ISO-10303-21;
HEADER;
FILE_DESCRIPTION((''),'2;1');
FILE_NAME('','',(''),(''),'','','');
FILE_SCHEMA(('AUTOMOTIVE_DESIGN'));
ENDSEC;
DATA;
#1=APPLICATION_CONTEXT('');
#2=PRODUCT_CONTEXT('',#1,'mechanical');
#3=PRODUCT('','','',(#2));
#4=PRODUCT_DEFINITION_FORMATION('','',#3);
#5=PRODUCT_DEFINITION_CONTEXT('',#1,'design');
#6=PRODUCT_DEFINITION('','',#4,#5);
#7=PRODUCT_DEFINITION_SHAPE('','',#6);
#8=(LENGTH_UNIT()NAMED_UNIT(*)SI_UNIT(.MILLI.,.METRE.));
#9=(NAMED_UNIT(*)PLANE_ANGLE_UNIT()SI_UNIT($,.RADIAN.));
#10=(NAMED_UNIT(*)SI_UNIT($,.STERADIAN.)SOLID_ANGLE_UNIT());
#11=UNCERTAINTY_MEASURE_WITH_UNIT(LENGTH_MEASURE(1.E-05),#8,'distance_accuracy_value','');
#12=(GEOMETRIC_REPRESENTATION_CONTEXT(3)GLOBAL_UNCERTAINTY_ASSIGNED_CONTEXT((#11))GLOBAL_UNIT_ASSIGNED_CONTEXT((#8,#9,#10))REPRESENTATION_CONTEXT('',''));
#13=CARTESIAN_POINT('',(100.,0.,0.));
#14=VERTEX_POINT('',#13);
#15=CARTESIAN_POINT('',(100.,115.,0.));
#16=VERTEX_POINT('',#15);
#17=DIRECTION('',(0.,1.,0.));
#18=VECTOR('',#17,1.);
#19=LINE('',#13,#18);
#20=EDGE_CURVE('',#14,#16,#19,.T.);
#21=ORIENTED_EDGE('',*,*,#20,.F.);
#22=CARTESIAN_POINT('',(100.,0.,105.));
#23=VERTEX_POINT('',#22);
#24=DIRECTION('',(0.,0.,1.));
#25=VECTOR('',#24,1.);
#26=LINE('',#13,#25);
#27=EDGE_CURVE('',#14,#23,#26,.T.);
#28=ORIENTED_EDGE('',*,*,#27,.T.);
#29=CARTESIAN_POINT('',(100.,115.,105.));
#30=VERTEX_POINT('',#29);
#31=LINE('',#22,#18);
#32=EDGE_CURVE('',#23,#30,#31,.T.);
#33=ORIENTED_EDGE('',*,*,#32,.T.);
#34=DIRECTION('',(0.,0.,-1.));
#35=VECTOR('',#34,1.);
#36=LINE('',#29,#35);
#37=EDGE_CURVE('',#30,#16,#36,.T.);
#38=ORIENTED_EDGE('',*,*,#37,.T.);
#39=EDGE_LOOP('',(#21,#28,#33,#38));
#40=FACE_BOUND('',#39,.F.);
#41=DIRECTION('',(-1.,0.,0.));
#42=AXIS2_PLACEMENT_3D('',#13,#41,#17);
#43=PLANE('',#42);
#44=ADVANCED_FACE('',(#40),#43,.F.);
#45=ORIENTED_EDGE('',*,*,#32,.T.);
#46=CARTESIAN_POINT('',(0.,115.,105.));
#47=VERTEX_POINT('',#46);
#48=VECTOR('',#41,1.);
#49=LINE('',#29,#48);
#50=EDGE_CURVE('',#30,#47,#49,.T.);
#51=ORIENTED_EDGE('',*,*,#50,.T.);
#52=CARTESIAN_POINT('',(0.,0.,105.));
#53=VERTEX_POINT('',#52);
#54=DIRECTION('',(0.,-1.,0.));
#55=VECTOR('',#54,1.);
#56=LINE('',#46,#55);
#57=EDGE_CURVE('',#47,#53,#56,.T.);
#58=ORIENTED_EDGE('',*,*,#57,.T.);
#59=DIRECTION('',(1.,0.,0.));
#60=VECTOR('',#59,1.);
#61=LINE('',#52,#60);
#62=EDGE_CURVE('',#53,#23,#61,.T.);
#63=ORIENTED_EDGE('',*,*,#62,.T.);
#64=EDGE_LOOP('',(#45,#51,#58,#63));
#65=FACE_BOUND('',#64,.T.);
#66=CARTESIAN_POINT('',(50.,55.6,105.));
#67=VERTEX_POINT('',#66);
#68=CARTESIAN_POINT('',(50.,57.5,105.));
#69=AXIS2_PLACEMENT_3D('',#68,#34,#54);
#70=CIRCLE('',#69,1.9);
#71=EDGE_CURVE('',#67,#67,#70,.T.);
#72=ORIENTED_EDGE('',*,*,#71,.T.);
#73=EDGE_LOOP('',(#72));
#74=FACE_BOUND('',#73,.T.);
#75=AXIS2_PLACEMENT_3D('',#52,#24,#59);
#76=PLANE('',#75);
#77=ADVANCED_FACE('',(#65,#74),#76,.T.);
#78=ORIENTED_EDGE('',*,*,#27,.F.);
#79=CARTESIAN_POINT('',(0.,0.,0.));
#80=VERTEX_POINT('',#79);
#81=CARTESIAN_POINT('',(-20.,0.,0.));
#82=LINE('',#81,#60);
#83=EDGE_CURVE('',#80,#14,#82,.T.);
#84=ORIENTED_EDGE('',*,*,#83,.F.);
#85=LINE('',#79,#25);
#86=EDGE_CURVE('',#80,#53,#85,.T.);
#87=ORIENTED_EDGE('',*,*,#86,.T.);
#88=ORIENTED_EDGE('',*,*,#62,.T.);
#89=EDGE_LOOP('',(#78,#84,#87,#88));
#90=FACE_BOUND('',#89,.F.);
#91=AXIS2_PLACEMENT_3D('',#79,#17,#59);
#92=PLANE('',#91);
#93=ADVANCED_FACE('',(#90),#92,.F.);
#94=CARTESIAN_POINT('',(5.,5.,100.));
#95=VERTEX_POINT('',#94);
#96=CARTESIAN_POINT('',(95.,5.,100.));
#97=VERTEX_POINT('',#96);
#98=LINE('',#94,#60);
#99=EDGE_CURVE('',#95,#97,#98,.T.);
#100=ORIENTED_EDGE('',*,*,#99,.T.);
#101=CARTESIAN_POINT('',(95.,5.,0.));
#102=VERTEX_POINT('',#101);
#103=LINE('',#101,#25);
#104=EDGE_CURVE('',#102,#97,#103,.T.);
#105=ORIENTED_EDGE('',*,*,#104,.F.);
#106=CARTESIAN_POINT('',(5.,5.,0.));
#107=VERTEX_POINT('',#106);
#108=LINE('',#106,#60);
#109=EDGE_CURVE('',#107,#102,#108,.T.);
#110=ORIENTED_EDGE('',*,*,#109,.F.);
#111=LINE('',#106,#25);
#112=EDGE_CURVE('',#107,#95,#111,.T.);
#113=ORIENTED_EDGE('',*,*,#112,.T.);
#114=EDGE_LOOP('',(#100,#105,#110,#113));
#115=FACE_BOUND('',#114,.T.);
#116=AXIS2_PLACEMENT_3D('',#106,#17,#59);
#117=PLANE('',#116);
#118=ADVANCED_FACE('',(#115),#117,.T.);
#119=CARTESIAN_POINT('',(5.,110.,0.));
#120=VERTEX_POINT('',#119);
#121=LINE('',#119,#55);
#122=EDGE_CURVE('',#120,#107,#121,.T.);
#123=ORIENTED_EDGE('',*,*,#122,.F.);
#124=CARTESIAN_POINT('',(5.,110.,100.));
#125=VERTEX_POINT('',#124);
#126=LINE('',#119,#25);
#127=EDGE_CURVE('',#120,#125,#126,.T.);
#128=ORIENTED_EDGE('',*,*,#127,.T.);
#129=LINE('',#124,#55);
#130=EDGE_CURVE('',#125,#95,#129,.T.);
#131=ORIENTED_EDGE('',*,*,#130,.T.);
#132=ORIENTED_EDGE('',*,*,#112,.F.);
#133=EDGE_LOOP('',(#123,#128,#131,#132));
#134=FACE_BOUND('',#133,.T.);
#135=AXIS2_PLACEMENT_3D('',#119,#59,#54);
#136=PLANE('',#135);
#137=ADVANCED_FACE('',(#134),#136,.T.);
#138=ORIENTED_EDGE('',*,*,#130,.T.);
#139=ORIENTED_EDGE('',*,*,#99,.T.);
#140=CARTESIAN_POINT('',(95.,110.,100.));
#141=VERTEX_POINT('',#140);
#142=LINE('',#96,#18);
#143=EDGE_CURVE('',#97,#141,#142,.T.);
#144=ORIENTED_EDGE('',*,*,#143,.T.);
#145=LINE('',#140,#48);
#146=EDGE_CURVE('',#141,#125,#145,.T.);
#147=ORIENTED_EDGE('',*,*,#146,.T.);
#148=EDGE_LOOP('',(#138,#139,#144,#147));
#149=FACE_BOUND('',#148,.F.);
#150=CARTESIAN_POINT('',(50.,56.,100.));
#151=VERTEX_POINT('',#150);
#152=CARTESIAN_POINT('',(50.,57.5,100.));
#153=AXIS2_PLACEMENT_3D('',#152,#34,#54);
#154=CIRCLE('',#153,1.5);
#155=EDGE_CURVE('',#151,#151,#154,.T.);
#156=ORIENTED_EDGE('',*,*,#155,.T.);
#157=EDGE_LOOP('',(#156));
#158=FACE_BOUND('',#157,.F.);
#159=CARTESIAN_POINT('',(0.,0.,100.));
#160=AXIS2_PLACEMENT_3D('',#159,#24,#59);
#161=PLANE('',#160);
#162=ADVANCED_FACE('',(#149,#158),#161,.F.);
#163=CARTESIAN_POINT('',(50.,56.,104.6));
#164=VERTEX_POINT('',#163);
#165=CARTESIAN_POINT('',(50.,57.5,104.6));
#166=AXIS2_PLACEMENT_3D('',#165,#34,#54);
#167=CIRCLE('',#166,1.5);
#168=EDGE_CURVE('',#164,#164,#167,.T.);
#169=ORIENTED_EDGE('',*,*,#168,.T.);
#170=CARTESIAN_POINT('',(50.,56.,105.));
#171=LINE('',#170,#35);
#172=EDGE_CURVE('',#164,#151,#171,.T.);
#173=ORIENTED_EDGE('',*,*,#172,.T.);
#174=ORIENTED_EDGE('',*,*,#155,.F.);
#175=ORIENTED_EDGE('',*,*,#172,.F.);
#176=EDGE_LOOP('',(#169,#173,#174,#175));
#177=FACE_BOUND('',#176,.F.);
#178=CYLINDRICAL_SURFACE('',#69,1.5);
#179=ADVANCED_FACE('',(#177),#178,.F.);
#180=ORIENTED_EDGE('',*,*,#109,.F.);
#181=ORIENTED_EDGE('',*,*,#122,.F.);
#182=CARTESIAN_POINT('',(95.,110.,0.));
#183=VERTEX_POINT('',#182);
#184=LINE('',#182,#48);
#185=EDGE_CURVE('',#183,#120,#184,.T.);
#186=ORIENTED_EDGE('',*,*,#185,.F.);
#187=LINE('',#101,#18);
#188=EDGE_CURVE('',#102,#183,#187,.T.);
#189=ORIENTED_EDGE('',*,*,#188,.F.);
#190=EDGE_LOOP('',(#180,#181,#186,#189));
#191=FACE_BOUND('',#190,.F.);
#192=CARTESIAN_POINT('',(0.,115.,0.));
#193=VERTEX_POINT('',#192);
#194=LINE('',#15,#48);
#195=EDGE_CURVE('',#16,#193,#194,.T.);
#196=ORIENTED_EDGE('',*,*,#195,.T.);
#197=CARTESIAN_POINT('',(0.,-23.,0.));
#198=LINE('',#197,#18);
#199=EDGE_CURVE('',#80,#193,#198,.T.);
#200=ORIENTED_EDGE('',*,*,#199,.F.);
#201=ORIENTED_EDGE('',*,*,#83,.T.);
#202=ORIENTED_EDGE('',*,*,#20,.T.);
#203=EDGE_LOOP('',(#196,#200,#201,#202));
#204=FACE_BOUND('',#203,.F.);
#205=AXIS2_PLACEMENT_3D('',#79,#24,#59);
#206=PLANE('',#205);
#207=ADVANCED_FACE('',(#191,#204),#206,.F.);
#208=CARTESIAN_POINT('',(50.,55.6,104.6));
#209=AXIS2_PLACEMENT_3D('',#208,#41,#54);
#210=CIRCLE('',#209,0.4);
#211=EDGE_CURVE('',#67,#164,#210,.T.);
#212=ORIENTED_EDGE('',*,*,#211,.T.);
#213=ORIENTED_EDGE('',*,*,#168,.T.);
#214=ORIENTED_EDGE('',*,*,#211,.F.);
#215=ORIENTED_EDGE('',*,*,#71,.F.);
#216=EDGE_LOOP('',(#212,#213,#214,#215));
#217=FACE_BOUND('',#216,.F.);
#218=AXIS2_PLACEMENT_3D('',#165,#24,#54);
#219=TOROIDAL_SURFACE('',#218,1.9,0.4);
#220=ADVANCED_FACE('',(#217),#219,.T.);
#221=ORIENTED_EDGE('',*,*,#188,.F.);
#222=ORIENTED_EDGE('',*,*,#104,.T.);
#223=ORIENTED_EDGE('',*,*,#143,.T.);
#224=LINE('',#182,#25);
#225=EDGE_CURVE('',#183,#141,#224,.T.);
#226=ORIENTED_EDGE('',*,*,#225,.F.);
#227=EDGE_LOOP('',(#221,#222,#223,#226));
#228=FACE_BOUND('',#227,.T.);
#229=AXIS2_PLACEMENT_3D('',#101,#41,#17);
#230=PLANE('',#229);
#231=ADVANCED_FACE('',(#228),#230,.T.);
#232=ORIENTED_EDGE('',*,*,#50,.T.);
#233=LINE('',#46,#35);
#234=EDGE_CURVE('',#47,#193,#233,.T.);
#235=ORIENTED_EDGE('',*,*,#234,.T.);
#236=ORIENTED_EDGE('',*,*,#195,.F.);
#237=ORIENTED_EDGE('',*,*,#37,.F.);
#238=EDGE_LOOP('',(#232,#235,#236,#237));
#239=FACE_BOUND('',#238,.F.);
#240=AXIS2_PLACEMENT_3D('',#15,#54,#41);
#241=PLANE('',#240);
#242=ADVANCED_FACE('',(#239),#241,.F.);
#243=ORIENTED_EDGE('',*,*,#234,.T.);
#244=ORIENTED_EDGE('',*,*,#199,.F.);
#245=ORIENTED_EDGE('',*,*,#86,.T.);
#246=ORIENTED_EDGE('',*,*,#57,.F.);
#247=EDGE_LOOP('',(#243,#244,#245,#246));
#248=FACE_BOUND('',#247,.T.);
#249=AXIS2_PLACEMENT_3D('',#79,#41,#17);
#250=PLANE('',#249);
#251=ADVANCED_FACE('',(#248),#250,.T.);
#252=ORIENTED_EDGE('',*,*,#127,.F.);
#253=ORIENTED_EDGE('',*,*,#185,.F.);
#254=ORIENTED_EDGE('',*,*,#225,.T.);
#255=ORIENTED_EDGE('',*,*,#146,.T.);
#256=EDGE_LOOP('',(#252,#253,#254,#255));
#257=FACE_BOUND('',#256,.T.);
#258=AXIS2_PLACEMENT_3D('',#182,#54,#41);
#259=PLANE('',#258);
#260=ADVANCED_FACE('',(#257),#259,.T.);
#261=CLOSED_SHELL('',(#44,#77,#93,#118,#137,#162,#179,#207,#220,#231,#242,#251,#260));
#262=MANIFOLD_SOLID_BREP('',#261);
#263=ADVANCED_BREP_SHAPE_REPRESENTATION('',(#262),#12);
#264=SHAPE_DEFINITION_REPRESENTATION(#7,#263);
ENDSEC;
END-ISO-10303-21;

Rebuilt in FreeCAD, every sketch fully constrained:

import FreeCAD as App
import Part
import Sketcher


def edges_at(feature, points):
    """Names of the edges that pass closest to the given points."""
    edges = feature.Shape.Edges
    near = lambda p: min(range(len(edges)), key=lambda i: edges[i].distToShape(Part.Vertex(*p))[0])
    return sorted({f"Edge{near(p) + 1}" for p in points})


def add_polygon(sketch, points):
    """Adds a closed chain of lines whose ends are joined by coincident constraints."""
    first, n = sketch.GeometryCount, len(points)
    for a, b in zip(points, points[1:] + points[:1]):
        sketch.addGeometry(Part.LineSegment(App.Vector(*a, 0), App.Vector(*b, 0)), False)
    for i in range(n):
        sketch.addConstraint(Sketcher.Constraint("Coincident", first + i, 2, first + (i + 1) % n, 1))

doc = App.newDocument("Part")
params = doc.addObject("Spreadsheet::Sheet", "Params")
for row, (alias, value) in enumerate([
    ("sketch1_width", "90 mm"),
    ("sketch1_height", "105 mm"),
    ("pad1_length", "100 mm"),
    ("sketch2_width", "100 mm"),
    ("sketch2_height", "115 mm"),
    ("pad2_length", "5 mm"),
    ("sketch3_diameter", "3 mm"),
    ("hole_diameter", "3 mm"),
    ("fillet_radius", "0.4 mm"),
], start=1):
    params.set(f"A{row}", alias)
    params.set(f"B{row}", "=" + value)
    params.setAlias(f"B{row}", alias)

body = doc.addObject("PartDesign::Body", "Body")

sketch1 = doc.addObject("Sketcher::SketchObject", "Sketch")
body.addObject(sketch1)
sketch1.AttachmentSupport = (doc.XY_Plane, [""])
sketch1.MapMode = "FlatFace"
add_polygon(sketch1, [(0, 115), (0, 0), (100, 0), (100, 115)])
add_polygon(sketch1, [(95, 5), (5, 5), (5, 110), (95, 110)])
sketch1.addConstraint([
    Sketcher.Constraint("Vertical", 0),
    Sketcher.Constraint("Horizontal", 1),
    Sketcher.Constraint("Vertical", 2),
    Sketcher.Constraint("Horizontal", 3),
    Sketcher.Constraint("Horizontal", 4),
    Sketcher.Constraint("Vertical", 5),
    Sketcher.Constraint("Horizontal", 6),
    Sketcher.Constraint("Vertical", 7),
    Sketcher.Constraint("Coincident", 0, 2, -1, 1),
    Sketcher.Constraint("DistanceX", 4, 2, 4, 1, 90.0),
    Sketcher.Constraint("DistanceY", 5, 1, 5, 2, 105.0),
    Sketcher.Constraint("DistanceX", -1, 1, 4, 2, 5.0),
    Sketcher.Constraint("DistanceY", -1, 1, 4, 2, 5.0),
    Sketcher.Constraint("DistanceY", 5, 2, 3, 2, 5.0),
    Sketcher.Constraint("DistanceX", 6, 2, 2, 2, 5.0),
])
sketch1.setExpression("Constraints[17]", "Params.sketch1_width")
sketch1.setExpression("Constraints[18]", "Params.sketch1_height")
pad1 = doc.addObject("PartDesign::Pad", "Pad")
body.addObject(pad1)
pad1.Profile = sketch1
pad1.setExpression("Length", "Params.pad1_length")

sketch2 = doc.addObject("Sketcher::SketchObject", "Sketch001")
body.addObject(sketch2)
sketch2.AttachmentSupport = (doc.XY_Plane, [""])
sketch2.MapMode = "FlatFace"
sketch2.AttachmentOffset = App.Placement(App.Vector(0, 0, 100), App.Rotation())
add_polygon(sketch2, [(100, 115), (0, 115), (0, 0), (100, 0)])
sketch2.addConstraint([
    Sketcher.Constraint("Horizontal", 0),
    Sketcher.Constraint("Vertical", 1),
    Sketcher.Constraint("Horizontal", 2),
    Sketcher.Constraint("Vertical", 3),
    Sketcher.Constraint("Coincident", 1, 2, -1, 1),
    Sketcher.Constraint("DistanceX", 0, 2, 0, 1, 100.0),
    Sketcher.Constraint("DistanceY", 1, 2, 1, 1, 115.0),
])
sketch2.setExpression("Constraints[9]", "Params.sketch2_width")
sketch2.setExpression("Constraints[10]", "Params.sketch2_height")
pad2 = doc.addObject("PartDesign::Pad", "Pad001")
body.addObject(pad2)
pad2.Profile = sketch2
pad2.setExpression("Length", "Params.pad2_length")

sketch3 = doc.addObject("Sketcher::SketchObject", "Sketch002")
body.addObject(sketch3)
sketch3.AttachmentSupport = (doc.XY_Plane, [""])
sketch3.MapMode = "FlatFace"
sketch3.AttachmentOffset = App.Placement(App.Vector(0, 0, 105), App.Rotation())
sketch3.addGeometry(Part.Circle(App.Vector(50, 57.5, 0), App.Vector(0, 0, 1), 1.5), False)
sketch3.addConstraint([
    Sketcher.Constraint("Diameter", 0, 3.0),
    Sketcher.Constraint("DistanceX", -1, 1, 0, 3, 50.0),
    Sketcher.Constraint("DistanceY", -1, 1, 0, 3, 57.5),
])
sketch3.setExpression("Constraints[0]", "Params.sketch3_diameter")
doc.recompute()
hole = doc.addObject("PartDesign::Hole", "Hole")
body.addObject(hole)
hole.Profile = sketch3
hole.ThreadType = "None"
hole.setExpression("Diameter", "Params.hole_diameter")
hole.DepthType = "ThroughAll"
doc.recompute()

fillet = doc.addObject("PartDesign::Fillet", "Fillet")
body.addObject(fillet)
fillet.Base = (hole, edges_at(hole, [(50, 59, 105)]))
fillet.setExpression("Radius", "Params.fillet_radius")

doc.recompute()
